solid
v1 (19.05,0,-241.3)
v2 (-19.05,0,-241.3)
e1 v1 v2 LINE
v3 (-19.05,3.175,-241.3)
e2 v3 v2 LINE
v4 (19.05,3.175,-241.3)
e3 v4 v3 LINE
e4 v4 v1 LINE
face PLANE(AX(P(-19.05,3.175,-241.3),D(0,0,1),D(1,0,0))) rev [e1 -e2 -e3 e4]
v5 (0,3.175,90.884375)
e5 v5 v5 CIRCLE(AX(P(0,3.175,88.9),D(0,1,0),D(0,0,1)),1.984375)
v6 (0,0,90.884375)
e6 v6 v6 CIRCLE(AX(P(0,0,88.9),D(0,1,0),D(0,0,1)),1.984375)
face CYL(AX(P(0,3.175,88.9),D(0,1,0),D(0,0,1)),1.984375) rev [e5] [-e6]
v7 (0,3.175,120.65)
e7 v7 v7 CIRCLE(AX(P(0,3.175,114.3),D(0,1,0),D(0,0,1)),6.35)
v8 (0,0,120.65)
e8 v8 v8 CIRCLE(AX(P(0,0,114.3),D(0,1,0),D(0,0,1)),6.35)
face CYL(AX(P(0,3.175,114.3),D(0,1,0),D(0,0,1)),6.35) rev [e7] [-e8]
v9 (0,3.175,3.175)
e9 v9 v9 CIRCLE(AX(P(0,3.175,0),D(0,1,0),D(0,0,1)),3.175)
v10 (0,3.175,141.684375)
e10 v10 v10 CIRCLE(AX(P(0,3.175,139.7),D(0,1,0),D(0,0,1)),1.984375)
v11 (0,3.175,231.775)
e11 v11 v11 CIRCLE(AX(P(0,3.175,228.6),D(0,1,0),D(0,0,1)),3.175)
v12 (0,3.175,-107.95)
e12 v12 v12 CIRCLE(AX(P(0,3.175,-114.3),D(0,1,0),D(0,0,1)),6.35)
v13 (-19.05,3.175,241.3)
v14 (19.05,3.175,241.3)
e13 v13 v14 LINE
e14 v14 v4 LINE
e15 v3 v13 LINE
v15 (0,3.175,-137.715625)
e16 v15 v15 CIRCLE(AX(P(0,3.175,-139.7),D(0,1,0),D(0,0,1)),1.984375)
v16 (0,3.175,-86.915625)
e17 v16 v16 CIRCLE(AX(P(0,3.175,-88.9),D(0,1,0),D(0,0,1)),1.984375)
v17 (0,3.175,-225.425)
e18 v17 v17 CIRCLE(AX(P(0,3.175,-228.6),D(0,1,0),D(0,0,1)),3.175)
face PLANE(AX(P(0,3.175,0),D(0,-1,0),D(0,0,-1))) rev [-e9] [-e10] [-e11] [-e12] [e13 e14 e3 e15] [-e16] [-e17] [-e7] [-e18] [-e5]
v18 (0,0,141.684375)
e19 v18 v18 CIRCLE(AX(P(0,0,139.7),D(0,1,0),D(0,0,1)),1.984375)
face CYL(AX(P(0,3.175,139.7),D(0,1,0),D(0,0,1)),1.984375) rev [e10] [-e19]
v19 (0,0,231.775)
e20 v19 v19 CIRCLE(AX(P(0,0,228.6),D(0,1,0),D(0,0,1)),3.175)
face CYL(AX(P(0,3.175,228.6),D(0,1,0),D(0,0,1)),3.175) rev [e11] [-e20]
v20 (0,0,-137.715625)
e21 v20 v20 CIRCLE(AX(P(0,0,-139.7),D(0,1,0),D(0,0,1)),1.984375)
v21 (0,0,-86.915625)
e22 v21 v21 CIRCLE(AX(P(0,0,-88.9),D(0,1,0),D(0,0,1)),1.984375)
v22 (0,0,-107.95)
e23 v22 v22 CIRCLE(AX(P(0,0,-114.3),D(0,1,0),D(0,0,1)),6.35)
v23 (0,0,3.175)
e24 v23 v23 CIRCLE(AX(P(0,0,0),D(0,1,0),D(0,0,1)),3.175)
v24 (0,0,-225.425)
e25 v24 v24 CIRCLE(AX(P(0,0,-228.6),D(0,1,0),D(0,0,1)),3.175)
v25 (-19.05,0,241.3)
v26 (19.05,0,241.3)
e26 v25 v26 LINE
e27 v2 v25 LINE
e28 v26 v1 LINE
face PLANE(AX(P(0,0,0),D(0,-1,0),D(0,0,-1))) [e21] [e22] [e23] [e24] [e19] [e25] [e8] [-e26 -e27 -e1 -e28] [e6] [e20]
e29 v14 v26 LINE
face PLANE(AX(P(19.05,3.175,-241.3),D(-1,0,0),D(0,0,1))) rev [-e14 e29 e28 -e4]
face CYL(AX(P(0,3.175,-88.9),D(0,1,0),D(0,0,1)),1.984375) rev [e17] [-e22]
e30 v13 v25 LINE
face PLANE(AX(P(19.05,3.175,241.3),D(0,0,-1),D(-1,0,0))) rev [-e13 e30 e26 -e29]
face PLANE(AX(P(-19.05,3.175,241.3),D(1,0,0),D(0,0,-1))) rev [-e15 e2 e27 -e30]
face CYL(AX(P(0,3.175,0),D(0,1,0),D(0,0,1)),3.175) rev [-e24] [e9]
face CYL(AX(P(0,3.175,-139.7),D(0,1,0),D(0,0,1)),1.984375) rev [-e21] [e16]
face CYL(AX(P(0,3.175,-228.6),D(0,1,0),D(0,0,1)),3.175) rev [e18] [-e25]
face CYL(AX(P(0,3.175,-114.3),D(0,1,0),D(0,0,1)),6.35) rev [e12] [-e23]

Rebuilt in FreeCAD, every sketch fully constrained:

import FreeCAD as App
import Part
import Sketcher
from FreeCAD import Vector
Q = App.Units.Quantity

doc = App.newDocument("Part")
params = doc.addObject("Spreadsheet::Sheet", "Params")
for row, (alias, value) in enumerate([
    ("sketch1_height", "19 in"),
    ("sketch1_width", "1.5 in"),
    ("pad1_length", "0.125 in"),
    ("sketch2_diameter", "0.25 in"),
    ("hole_diameter", "0.25 in"),
    ("sketch3_diameter", "0.5 in"),
    ("hole2_diameter", "0.5 in"),
    ("sketch4_diameter", "0.5 in"),
    ("pad2_length", "0.125 in"),
    ("sketch5_diameter", "0.5 in"),
    ("hole3_diameter", "0.5 in"),
    ("sketch6_diameter", "0.15625 in"),
    ("hole4_diameter", "0.15625 in"),
], start=1):
    params.set(f"A{row}", alias)
    params.set(f"B{row}", "=" + value)
    params.setAlias(f"B{row}", alias)

body = doc.addObject("PartDesign::Body", "Body")

# Sketch on XZ plane
sketch1 = body.newObject("Sketcher::SketchObject", "Sketch")
sketch1.AttachmentSupport = (doc.getObject("XZ_Plane"), [""])
sketch1.MapMode = "FlatFace"
sketch1.addGeometry(Part.LineSegment(Vector(19, 241, 0), Vector(19, -241, 0)), False)
sketch1.addGeometry(Part.LineSegment(Vector(19, -241, 0), Vector(-19, -241, 0)), False)
sketch1.addGeometry(Part.LineSegment(Vector(-19, -241, 0), Vector(-19, 241, 0)), False)
sketch1.addGeometry(Part.LineSegment(Vector(-19, 241, 0), Vector(19, 241, 0)), False)
sketch1.addConstraint(Sketcher.Constraint("Coincident", 0, 2, 1, 1))
sketch1.addConstraint(Sketcher.Constraint("Coincident", 1, 2, 2, 1))
sketch1.addConstraint(Sketcher.Constraint("Coincident", 2, 2, 3, 1))
sketch1.addConstraint(Sketcher.Constraint("Coincident", 3, 2, 0, 1))
sketch1.addConstraint(Sketcher.Constraint("Vertical", 0))
sketch1.addConstraint(Sketcher.Constraint("Horizontal", 1))
sketch1.addConstraint(Sketcher.Constraint("Vertical", 2))
sketch1.addConstraint(Sketcher.Constraint("Horizontal", 3))
sketch1.addConstraint(Sketcher.Constraint("Symmetric", 0, 2, 2, 2, -1, 1))
sketch1.addConstraint(Sketcher.Constraint("DistanceY", 0, 2, 0, 1, Q("19 in")))
sketch1.addConstraint(Sketcher.Constraint("DistanceX", 1, 2, 1, 1, Q("1.5 in")))
sketch1.setExpression("Constraints[9]", "Params.sketch1_height")
sketch1.setExpression("Constraints[10]", "Params.sketch1_width")
pad1 = body.newObject("PartDesign::Pad", "Pad")
pad1.Profile = sketch1
pad1.setExpression("Length", "Params.pad1_length")
pad1.Reversed = True

# Sketch on XZ plane
sketch2 = body.newObject("Sketcher::SketchObject", "Sketch001")
sketch2.AttachmentSupport = (doc.getObject("XZ_Plane"), [""])
sketch2.MapMode = "FlatFace"
sketch2.AttachmentOffset = App.Placement(Vector(0, 0, -0.125 * 25.4), App.Rotation())
sketch2.addGeometry(Part.Circle(Vector(0, 228.6, 0), Vector(0, 0, 1), 3.2), False)
sketch2.addGeometry(Part.Circle(Vector(0, -228.6, 0), Vector(0, 0, 1), 3.2), False)
sketch2.addGeometry(Part.Circle(Vector(0, 0, 0), Vector(0, 0, 1), 3.2), False)
sketch2.addConstraint(Sketcher.Constraint("Coincident", 2, 3, -1, 1))
sketch2.addConstraint(Sketcher.Constraint("Equal", 0, 1))
sketch2.addConstraint(Sketcher.Constraint("Equal", 1, 2))
sketch2.addConstraint(Sketcher.Constraint("Symmetric", 0, 3, 1, 3, -1, 1))
sketch2.addConstraint(Sketcher.Constraint("PointOnObject", 0, 3, -2))
sketch2.addConstraint(Sketcher.Constraint("Diameter", 0, Q("0.25 in")))
sketch2.addConstraint(Sketcher.Constraint("DistanceY", -1, 1, 0, 3, Q("9 in")))
sketch2.setExpression("Constraints[5]", "Params.sketch2_diameter")
doc.recompute()
hole = body.newObject("PartDesign::Hole", "Hole")
hole.Profile = sketch2
hole.ThreadType = "None"
hole.setExpression("Diameter", "Params.hole_diameter")
hole.DepthType = "ThroughAll"
hole.Reversed = True

# Sketch on XZ plane
sketch3 = body.newObject("Sketcher::SketchObject", "Sketch002")
sketch3.AttachmentSupport = (doc.getObject("XZ_Plane"), [""])
sketch3.MapMode = "FlatFace"
sketch3.AttachmentOffset = App.Placement(Vector(0, 0, -0.125 * 25.4), App.Rotation())
sketch3.addGeometry(Part.Circle(Vector(0, 102, 0), Vector(0, 0, 1), 6), False)
sketch3.addGeometry(Part.Circle(Vector(0, -102, 0), Vector(0, 0, 1), 6), False)
sketch3.addConstraint(Sketcher.Constraint("Equal", 0, 1))
sketch3.addConstraint(Sketcher.Constraint("Symmetric", 0, 3, 1, 3, -1, 1))
sketch3.addConstraint(Sketcher.Constraint("PointOnObject", 0, 3, -2))
sketch3.addConstraint(Sketcher.Constraint("Diameter", 0, Q("0.5 in")))
sketch3.addConstraint(Sketcher.Constraint("DistanceY", -1, 1, 0, 3, Q("4 in")))
sketch3.setExpression("Constraints[3]", "Params.sketch3_diameter")
doc.recompute()
hole2 = body.newObject("PartDesign::Hole", "Hole001")
hole2.Profile = sketch3
hole2.ThreadType = "None"
hole2.setExpression("Diameter", "Params.hole2_diameter")
hole2.DepthType = "ThroughAll"
hole2.Reversed = True

# Sketch on XZ plane
sketch4 = body.newObject("Sketcher::SketchObject", "Sketch003")
sketch4.AttachmentSupport = (doc.getObject("XZ_Plane"), [""])
sketch4.MapMode = "FlatFace"
sketch4.addGeometry(Part.Circle(Vector(0, 102, 0), Vector(0, 0, 1), 6), False)
sketch4.addGeometry(Part.Circle(Vector(0, -102, 0), Vector(0, 0, 1), 6), False)
sketch4.addConstraint(Sketcher.Constraint("Equal", 0, 1))
sketch4.addConstraint(Sketcher.Constraint("Symmetric", 0, 3, 1, 3, -1, 1))
sketch4.addConstraint(Sketcher.Constraint("PointOnObject", 0, 3, -2))
sketch4.addConstraint(Sketcher.Constraint("Diameter", 0, Q("0.5 in")))
sketch4.addConstraint(Sketcher.Constraint("DistanceY", -1, 1, 0, 3, Q("4 in")))
sketch4.setExpression("Constraints[3]", "Params.sketch4_diameter")
pad2 = body.newObject("PartDesign::Pad", "Pad001")
pad2.Profile = sketch4
pad2.setExpression("Length", "Params.pad2_length")
pad2.Reversed = True

# Sketch on XZ plane
sketch5 = body.newObject("Sketcher::SketchObject", "Sketch004")
sketch5.AttachmentSupport = (doc.getObject("XZ_Plane"), [""])
sketch5.MapMode = "FlatFace"
sketch5.AttachmentOffset = App.Placement(Vector(0, 0, -0.125 * 25.4), App.Rotation())
sketch5.addGeometry(Part.Circle(Vector(0, -114, 0), Vector(0, 0, 1), 6), False)
sketch5.addGeometry(Part.Circle(Vector(0, 114, 0), Vector(0, 0, 1), 6), False)
sketch5.addConstraint(Sketcher.Constraint("Equal", 0, 1))
sketch5.addConstraint(Sketcher.Constraint("Symmetric", 0, 3, 1, 3, -1, 1))
sketch5.addConstraint(Sketcher.Constraint("PointOnObject", 0, 3, -2))
sketch5.addConstraint(Sketcher.Constraint("Diameter", 0, Q("0.5 in")))
sketch5.addConstraint(Sketcher.Constraint("DistanceY", 0, 3, 1, 3, Q("9 in")))
sketch5.setExpression("Constraints[3]", "Params.sketch5_diameter")
doc.recompute()
hole3 = body.newObject("PartDesign::Hole", "Hole002")
hole3.Profile = sketch5
hole3.ThreadType = "None"
hole3.setExpression("Diameter", "Params.hole3_diameter")
hole3.DepthType = "ThroughAll"
hole3.Reversed = True

# Sketch on XZ plane
sketch6 = body.newObject("Sketcher::SketchObject", "Sketch005")
sketch6.AttachmentSupport = (doc.getObject("XZ_Plane"), [""])
sketch6.MapMode = "FlatFace"
sketch6.AttachmentOffset = App.Placement(Vector(0, 0, -0.125 * 25.4), App.Rotation())
sketch6.addGeometry(Part.Circle(Vector(0, 88.9, 0), Vector(0, 0, 1), 2), False)
sketch6.addGeometry(Part.Circle(Vector(0, 139.7, 0), Vector(0, 0, 1), 2), False)
sketch6.addGeometry(Part.Circle(Vector(0, -88.9, 0), Vector(0, 0, 1), 2), False)
sketch6.addGeometry(Part.Circle(Vector(0, -139.7, 0), Vector(0, 0, 1), 2), False)
sketch6.addConstraint(Sketcher.Constraint("Equal", 0, 1))
sketch6.addConstraint(Sketcher.Constraint("Equal", 1, 2))
sketch6.addConstraint(Sketcher.Constraint("Equal", 2, 3))
sketch6.addConstraint(Sketcher.Constraint("Symmetric", 0, 3, 2, 3, -1, 1))
sketch6.addConstraint(Sketcher.Constraint("Symmetric", 1, 3, 3, 3, -1, 1))
sketch6.addConstraint(Sketcher.Constraint("PointOnObject", 0, 3, -2))
sketch6.addConstraint(Sketcher.Constraint("PointOnObject", 1, 3, -2))
sketch6.addConstraint(Sketcher.Constraint("Diameter", 0, Q("0.15625 in")))
sketch6.addConstraint(Sketcher.Constraint("DistanceY", 0, 3, 1, 3, Q("2 in")))
sketch6.addConstraint(Sketcher.Constraint("DistanceY", 2, 3, 0, 3, Q("7 in")))
sketch6.setExpression("Constraints[7]", "Params.sketch6_diameter")
doc.recompute()
hole4 = body.newObject("PartDesign::Hole", "Hole003")
hole4.Profile = sketch6
hole4.ThreadType = "None"
hole4.setExpression("Diameter", "Params.hole4_diameter")
hole4.DepthType = "ThroughAll"
hole4.Reversed = True

doc.recompute()
